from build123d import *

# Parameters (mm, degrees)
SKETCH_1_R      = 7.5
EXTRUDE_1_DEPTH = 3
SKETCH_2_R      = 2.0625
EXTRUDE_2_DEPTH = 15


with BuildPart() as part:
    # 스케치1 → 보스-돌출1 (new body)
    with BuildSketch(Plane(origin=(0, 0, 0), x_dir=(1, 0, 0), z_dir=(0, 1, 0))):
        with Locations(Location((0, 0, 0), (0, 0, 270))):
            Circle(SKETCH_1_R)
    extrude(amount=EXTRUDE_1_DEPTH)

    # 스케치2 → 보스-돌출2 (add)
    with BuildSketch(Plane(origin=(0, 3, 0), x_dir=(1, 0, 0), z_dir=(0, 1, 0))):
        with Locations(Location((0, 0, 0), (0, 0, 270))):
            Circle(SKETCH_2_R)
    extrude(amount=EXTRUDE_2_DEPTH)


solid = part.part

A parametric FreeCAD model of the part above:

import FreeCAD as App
import Part
import Sketcher
from FreeCAD import Vector
Q = App.Units.Quantity

doc = App.newDocument("Part")
body = doc.addObject("PartDesign::Body", "Body")

sketch1 = body.newObject("Sketcher::SketchObject", "Sketch")
sketch1.AttachmentSupport = (doc.getObject("XZ_Plane"), [""])
sketch1.MapMode = "FlatFace"
sketch1.addGeometry(Part.Circle(Vector(0, 0, 0), Vector(0, 0, 1), 8), False)
sketch1.addConstraint([
    Sketcher.Constraint("Coincident", 0, 3, -1, 1),
    Sketcher.Constraint("Diameter", 0, Q("15 mm")),
])
pad1 = body.newObject("PartDesign::Pad", "Pad")
pad1.Profile = sketch1
pad1.Length = 3
pad1.Reversed = True

sketch2 = body.newObject("Sketcher::SketchObject", "Sketch001")
sketch2.AttachmentSupport = (doc.getObject("XZ_Plane"), [""])
sketch2.MapMode = "FlatFace"
sketch2.AttachmentOffset = App.Placement(Vector(0, 0, -3), App.Rotation())
sketch2.addGeometry(Part.Circle(Vector(0, 0, 0), Vector(0, 0, 1), 2.1), False)
sketch2.addConstraint([
    Sketcher.Constraint("Coincident", 0, 3, -1, 1),
    Sketcher.Constraint("Diameter", 0, Q("4.125 mm")),
])
pad2 = body.newObject("PartDesign::Pad", "Pad001")
pad2.Profile = sketch2
pad2.Length = 15
pad2.Reversed = True

doc.recompute()
